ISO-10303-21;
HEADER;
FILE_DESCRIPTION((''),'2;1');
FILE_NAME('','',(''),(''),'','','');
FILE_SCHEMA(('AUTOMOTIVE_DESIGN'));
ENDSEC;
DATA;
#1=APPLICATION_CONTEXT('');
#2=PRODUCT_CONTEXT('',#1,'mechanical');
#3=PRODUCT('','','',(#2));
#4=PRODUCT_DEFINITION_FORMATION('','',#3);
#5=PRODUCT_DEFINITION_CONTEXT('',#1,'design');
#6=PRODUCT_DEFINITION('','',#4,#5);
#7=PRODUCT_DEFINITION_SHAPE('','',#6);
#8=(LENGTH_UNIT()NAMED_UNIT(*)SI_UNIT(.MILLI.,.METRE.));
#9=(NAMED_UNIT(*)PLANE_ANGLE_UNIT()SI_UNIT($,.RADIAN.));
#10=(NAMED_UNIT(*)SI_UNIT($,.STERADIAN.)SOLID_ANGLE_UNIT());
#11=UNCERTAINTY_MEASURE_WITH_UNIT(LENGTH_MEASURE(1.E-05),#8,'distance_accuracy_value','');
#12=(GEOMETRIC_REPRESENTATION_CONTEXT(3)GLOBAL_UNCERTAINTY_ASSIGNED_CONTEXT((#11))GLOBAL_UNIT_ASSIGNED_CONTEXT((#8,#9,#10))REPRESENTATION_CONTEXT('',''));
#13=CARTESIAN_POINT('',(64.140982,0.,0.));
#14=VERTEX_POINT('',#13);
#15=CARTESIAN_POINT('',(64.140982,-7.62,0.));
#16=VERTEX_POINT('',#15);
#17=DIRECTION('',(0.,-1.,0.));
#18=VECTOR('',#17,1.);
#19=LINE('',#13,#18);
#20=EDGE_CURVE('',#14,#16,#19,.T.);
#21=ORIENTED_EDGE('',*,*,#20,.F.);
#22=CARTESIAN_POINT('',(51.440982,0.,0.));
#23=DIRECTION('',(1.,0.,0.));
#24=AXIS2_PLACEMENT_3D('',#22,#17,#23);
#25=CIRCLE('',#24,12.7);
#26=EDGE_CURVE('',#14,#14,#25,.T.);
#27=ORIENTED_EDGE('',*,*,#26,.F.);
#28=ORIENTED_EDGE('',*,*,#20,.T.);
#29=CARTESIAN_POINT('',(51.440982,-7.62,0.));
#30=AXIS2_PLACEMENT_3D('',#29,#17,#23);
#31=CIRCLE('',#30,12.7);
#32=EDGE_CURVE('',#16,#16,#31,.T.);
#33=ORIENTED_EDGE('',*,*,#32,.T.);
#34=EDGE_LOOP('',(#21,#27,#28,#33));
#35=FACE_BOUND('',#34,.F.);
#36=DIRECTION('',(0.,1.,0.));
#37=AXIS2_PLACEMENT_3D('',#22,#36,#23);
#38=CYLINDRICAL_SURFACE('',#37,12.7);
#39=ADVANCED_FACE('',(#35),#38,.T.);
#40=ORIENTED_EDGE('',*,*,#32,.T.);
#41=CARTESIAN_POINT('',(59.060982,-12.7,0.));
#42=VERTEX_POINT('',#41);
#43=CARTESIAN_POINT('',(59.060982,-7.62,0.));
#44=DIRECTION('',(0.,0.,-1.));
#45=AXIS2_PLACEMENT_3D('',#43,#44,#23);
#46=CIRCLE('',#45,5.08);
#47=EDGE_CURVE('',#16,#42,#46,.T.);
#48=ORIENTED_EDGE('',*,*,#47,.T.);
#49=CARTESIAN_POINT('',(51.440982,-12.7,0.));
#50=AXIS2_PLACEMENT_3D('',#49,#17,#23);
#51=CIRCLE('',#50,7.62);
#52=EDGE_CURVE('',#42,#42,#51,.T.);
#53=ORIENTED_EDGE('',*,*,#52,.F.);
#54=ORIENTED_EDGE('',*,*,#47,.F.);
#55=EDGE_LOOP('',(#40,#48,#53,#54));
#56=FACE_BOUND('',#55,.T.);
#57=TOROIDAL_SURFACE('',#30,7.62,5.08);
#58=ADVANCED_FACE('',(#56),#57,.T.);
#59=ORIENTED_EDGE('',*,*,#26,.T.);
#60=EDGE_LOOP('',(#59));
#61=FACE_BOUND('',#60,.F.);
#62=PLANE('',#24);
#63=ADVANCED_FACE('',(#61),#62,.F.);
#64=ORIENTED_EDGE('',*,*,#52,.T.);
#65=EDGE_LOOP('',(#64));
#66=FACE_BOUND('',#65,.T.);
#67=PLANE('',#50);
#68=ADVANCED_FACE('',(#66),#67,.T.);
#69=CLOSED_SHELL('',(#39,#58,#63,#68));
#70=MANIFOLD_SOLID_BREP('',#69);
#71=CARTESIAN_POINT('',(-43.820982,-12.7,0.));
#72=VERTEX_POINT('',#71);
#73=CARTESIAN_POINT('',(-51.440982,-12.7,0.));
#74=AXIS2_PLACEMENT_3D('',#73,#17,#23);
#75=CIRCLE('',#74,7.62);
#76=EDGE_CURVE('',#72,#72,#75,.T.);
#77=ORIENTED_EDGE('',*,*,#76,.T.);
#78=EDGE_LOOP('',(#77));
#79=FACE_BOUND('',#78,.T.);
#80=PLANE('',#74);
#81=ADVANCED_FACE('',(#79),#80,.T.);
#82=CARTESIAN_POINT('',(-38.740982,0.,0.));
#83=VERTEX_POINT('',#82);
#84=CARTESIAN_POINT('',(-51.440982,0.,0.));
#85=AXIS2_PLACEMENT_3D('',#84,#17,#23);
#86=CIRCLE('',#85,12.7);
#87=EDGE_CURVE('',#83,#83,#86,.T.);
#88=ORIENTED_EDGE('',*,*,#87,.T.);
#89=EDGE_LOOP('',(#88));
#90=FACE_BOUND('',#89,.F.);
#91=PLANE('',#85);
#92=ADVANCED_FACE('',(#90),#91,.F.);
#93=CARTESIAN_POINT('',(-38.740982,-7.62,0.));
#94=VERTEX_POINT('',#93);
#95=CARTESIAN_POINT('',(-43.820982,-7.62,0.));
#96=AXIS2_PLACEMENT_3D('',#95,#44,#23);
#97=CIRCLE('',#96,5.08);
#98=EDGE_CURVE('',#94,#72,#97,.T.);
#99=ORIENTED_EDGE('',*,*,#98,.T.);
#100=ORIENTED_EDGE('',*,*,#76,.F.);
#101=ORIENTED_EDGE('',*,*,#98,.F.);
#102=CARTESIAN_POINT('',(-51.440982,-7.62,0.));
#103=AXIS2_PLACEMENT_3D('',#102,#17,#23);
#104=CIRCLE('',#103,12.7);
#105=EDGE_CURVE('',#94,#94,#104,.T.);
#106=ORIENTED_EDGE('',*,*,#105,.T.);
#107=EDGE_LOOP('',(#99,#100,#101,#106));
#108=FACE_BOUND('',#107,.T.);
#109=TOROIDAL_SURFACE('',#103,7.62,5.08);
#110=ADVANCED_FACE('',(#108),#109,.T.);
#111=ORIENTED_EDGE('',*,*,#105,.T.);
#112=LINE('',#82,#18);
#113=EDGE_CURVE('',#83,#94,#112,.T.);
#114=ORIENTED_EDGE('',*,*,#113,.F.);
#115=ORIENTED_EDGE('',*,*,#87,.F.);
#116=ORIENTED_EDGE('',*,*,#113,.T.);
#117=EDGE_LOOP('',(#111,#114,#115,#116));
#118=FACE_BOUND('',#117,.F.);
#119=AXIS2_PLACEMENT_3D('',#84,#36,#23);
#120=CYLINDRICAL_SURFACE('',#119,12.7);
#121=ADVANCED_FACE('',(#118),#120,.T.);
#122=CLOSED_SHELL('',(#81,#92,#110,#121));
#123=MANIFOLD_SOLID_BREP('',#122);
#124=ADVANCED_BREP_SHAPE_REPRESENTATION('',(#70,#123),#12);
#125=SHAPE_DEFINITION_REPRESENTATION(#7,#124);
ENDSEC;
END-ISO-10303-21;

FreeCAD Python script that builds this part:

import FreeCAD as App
import Part
import Sketcher

V = App.Vector
Q = App.Units.Quantity


def edges_at(feature, points):
    """Names of the edges that pass closest to the given points."""
    edges = feature.Shape.Edges
    near = lambda p: min(range(len(edges)), key=lambda i: edges[i].distToShape(Part.Vertex(*p))[0])
    return sorted({f"Edge{near(p) + 1}" for p in points})

doc = App.newDocument("Part")
body = doc.addObject("PartDesign::Body", "Body")
body.AllowCompound = True

# Sketch on XZ plane
sketch1 = doc.addObject("Sketcher::SketchObject", "Sketch")
body.addObject(sketch1)
sketch1.AttachmentSupport = (doc.XZ_Plane, [""])
sketch1.MapMode = "FlatFace"
sketch1.addGeometry([
    Part.Circle(V(-51, 0, 0), V(0, 0, 1), 13),
    Part.Circle(V(51, 0, 0), V(0, 0, 1), 13),
], False)
sketch1.addConstraint([
    Sketcher.Constraint("Equal", 0, 1),
    Sketcher.Constraint("Symmetric", 0, 3, 1, 3, -1, 1),
    Sketcher.Constraint("PointOnObject", 0, 3, -1),
    Sketcher.Constraint("Diameter", 0, Q("1 in")),
    Sketcher.Constraint("DistanceX", 0, 3, -1, 1, 51.440982),
])
pad1 = doc.addObject("PartDesign::Pad", "Pad")
body.addObject(pad1)
pad1.Profile = sketch1
pad1.Length = Q("0.5 in")
doc.recompute()

fillet = doc.addObject("PartDesign::Fillet", "Fillet")
body.addObject(fillet)
fillet.Base = (pad1, edges_at(pad1, [(-64.141, -12.7, 0), (38.741, -12.7, 0)]))
fillet.Radius = Q("0.2 in")

doc.recompute()
